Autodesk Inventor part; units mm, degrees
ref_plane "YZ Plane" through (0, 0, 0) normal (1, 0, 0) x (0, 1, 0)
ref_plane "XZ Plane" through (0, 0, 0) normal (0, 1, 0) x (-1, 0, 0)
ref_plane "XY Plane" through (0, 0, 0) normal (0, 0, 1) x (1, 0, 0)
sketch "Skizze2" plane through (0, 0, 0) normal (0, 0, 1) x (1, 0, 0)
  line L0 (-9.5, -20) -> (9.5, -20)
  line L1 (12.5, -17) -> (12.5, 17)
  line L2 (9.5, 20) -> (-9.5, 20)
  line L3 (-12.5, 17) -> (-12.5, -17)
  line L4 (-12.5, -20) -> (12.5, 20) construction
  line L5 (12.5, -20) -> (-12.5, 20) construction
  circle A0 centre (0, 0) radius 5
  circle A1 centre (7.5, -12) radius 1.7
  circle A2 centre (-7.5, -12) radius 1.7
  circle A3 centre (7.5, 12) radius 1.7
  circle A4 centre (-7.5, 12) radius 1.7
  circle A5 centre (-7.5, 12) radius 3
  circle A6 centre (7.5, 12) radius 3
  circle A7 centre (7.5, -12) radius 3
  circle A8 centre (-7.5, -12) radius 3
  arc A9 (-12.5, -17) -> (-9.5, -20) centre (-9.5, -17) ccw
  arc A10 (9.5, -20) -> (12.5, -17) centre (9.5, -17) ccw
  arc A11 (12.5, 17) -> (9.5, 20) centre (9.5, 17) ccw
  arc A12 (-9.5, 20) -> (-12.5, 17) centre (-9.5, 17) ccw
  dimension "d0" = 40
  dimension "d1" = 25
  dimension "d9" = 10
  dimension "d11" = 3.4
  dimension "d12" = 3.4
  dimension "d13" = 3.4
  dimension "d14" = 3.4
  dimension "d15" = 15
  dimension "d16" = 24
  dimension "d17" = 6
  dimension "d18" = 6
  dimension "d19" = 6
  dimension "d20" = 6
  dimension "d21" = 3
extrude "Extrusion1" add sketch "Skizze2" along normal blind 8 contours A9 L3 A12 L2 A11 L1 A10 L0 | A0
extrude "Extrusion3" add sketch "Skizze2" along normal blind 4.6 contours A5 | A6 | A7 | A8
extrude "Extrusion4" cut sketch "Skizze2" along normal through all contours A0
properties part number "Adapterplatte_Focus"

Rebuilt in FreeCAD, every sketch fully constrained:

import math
import FreeCAD as App
import Part
import Sketcher

V = App.Vector
Q = App.Units.Quantity

doc = App.newDocument("Part")
body = doc.addObject("PartDesign::Body", "Body")

sketch1 = body.newObject("Sketcher::SketchObject", "Sketch")
sketch1.AttachmentSupport = (doc.getObject("XY_Plane"), [""])
sketch1.MapMode = "FlatFace"
sketch1.addGeometry(Part.ArcOfCircle(Part.Circle(V(-9.5, -17, 0), V(0, 0, 1), 3), math.radians(180), math.radians(270)), False)
sketch1.addGeometry(Part.LineSegment(V(-9.5, -20, 0), V(9.5, -20, 0)), False)
sketch1.addGeometry(Part.ArcOfCircle(Part.Circle(V(9.5, -17, 0), V(0, 0, 1), 3), math.radians(-90), math.radians(0)), False)
sketch1.addGeometry(Part.LineSegment(V(12.5, -17, 0), V(12.5, 17, 0)), False)
sketch1.addGeometry(Part.ArcOfCircle(Part.Circle(V(9.5, 17, 0), V(0, 0, 1), 3), math.radians(0), math.radians(90)), False)
sketch1.addGeometry(Part.LineSegment(V(9.5, 20, 0), V(-9.5, 20, 0)), False)
sketch1.addGeometry(Part.ArcOfCircle(Part.Circle(V(-9.5, 17, 0), V(0, 0, 1), 3), math.radians(90), math.radians(180)), False)
sketch1.addGeometry(Part.LineSegment(V(-12.5, 17, 0), V(-12.5, -17, 0)), False)
sketch1.addGeometry(Part.Circle(V(-7.5, -12, 0), V(0, 0, 1), 3), False)
sketch1.addGeometry(Part.Circle(V(7.5, -12, 0), V(0, 0, 1), 3), False)
sketch1.addGeometry(Part.Circle(V(-7.5, 12, 0), V(0, 0, 1), 3), False)
sketch1.addGeometry(Part.Circle(V(7.5, 12, 0), V(0, 0, 1), 3), False)
sketch1.addConstraint(Sketcher.Constraint("Tangent", 0, 2, 1, 1))
sketch1.addConstraint(Sketcher.Constraint("Tangent", 1, 2, 2, 1))
sketch1.addConstraint(Sketcher.Constraint("Tangent", 2, 2, 3, 1))
sketch1.addConstraint(Sketcher.Constraint("Tangent", 3, 2, 4, 1))
sketch1.addConstraint(Sketcher.Constraint("Tangent", 4, 2, 5, 1))
sketch1.addConstraint(Sketcher.Constraint("Tangent", 5, 2, 6, 1))
sketch1.addConstraint(Sketcher.Constraint("Tangent", 6, 2, 7, 1))
sketch1.addConstraint(Sketcher.Constraint("Tangent", 7, 2, 0, 1))
sketch1.addConstraint(Sketcher.Constraint("Horizontal", 1))
sketch1.addConstraint(Sketcher.Constraint("Vertical", 3))
sketch1.addConstraint(Sketcher.Constraint("Horizontal", 5))
sketch1.addConstraint(Sketcher.Constraint("Vertical", 7))
sketch1.addConstraint(Sketcher.Constraint("Equal", 0, 2))
sketch1.addConstraint(Sketcher.Constraint("Equal", 2, 4))
sketch1.addConstraint(Sketcher.Constraint("Equal", 4, 6))
sketch1.addConstraint(Sketcher.Constraint("Equal", 6, 8))
sketch1.addConstraint(Sketcher.Constraint("Equal", 8, 9))
sketch1.addConstraint(Sketcher.Constraint("Equal", 9, 10))
sketch1.addConstraint(Sketcher.Constraint("Equal", 10, 11))
sketch1.addConstraint(Sketcher.Constraint("Symmetric", 0, 3, 4, 3, -1, 1))
sketch1.addConstraint(Sketcher.Constraint("Symmetric", 9, 3, 10, 3, -1, 1))
sketch1.addConstraint(Sketcher.Constraint("Symmetric", 8, 3, 11, 3, -1, 1))
sketch1.addConstraint(Sketcher.Constraint("Symmetric", 8, 3, 9, 3, -2))
sketch1.addConstraint(Sketcher.Constraint("Diameter", 8, Q("6 mm")))
sketch1.addConstraint(Sketcher.Constraint("DistanceX", 8, 3, 9, 3, Q("15 mm")))
sketch1.addConstraint(Sketcher.Constraint("DistanceY", 8, 3, 10, 3, Q("24 mm")))
sketch1.addConstraint(Sketcher.Constraint("DistanceX", 1, 1, 1, 2, Q("19 mm")))
sketch1.addConstraint(Sketcher.Constraint("DistanceY", 3, 1, 3, 2, Q("34 mm")))
pad1 = body.newObject("PartDesign::Pad", "Pad")
pad1.Profile = sketch1
pad1.Length = 8

sketch2 = body.newObject("Sketcher::SketchObject", "Sketch001")
sketch2.AttachmentSupport = (doc.getObject("XY_Plane"), [""])
sketch2.MapMode = "FlatFace"
sketch2.addGeometry(Part.Circle(V(-7.5, 12, 0), V(0, 0, 1), 3), False)
sketch2.addGeometry(Part.Circle(V(-7.5, 12, 0), V(0, 0, 1), 1.7), False)
sketch2.addGeometry(Part.Circle(V(7.5, 12, 0), V(0, 0, 1), 3), False)
sketch2.addGeometry(Part.Circle(V(7.5, 12, 0), V(0, 0, 1), 1.7), False)
sketch2.addGeometry(Part.Circle(V(7.5, -12, 0), V(0, 0, 1), 3), False)
sketch2.addGeometry(Part.Circle(V(7.5, -12, 0), V(0, 0, 1), 1.7), False)
sketch2.addGeometry(Part.Circle(V(-7.5, -12, 0), V(0, 0, 1), 3), False)
sketch2.addGeometry(Part.Circle(V(-7.5, -12, 0), V(0, 0, 1), 1.7), False)
sketch2.addConstraint(Sketcher.Constraint("Coincident", 1, 3, 0, 3))
sketch2.addConstraint(Sketcher.Constraint("Coincident", 3, 3, 2, 3))
sketch2.addConstraint(Sketcher.Constraint("Coincident", 5, 3, 4, 3))
sketch2.addConstraint(Sketcher.Constraint("Coincident", 7, 3, 6, 3))
sketch2.addConstraint(Sketcher.Constraint("Equal", 0, 2))
sketch2.addConstraint(Sketcher.Constraint("Equal", 1, 3))
sketch2.addConstraint(Sketcher.Constraint("Equal", 2, 4))
sketch2.addConstraint(Sketcher.Constraint("Equal", 3, 5))
sketch2.addConstraint(Sketcher.Constraint("Equal", 4, 6))
sketch2.addConstraint(Sketcher.Constraint("Equal", 5, 7))
sketch2.addConstraint(Sketcher.Constraint("Symmetric", 0, 3, 4, 3, -1, 1))
sketch2.addConstraint(Sketcher.Constraint("Symmetric", 2, 3, 6, 3, -1, 1))
sketch2.addConstraint(Sketcher.Constraint("Symmetric", 0, 3, 2, 3, -2))
sketch2.addConstraint(Sketcher.Constraint("Diameter", 0, Q("6 mm")))
sketch2.addConstraint(Sketcher.Constraint("Diameter", 1, Q("3.4 mm")))
sketch2.addConstraint(Sketcher.Constraint("DistanceX", 0, 3, 2, 3, Q("15 mm")))
sketch2.addConstraint(Sketcher.Constraint("DistanceY", 4, 3, 2, 3, Q("24 mm")))
pad2 = body.newObject("PartDesign::Pad", "Pad001")
pad2.Profile = sketch2
pad2.Length = 4.6

sketch3 = body.newObject("Sketcher::SketchObject", "Sketch002")
sketch3.AttachmentSupport = (doc.getObject("XY_Plane"), [""])
sketch3.MapMode = "FlatFace"
sketch3.addGeometry(Part.Circle(V(0, 0, 0), V(0, 0, 1), 5), False)
sketch3.addConstraint(Sketcher.Constraint("Coincident", 0, 3, -1, 1))
sketch3.addConstraint(Sketcher.Constraint("Diameter", 0, Q("10 mm")))
pocket1 = body.newObject("PartDesign::Pocket", "Pocket")
pocket1.Profile = sketch3
pocket1.Type = "ThroughAll"
pocket1.Reversed = True

doc.recompute()
